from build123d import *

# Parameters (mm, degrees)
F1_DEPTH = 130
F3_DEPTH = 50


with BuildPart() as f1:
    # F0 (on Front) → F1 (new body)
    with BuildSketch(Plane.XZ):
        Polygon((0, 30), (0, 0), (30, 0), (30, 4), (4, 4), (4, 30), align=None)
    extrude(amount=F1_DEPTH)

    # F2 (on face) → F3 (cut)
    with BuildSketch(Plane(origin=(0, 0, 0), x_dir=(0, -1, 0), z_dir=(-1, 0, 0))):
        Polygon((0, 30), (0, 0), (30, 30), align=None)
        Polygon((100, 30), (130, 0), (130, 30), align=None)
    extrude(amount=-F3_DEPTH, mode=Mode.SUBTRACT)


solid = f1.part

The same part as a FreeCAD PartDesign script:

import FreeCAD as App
import Part
import Sketcher
from FreeCAD import Vector


def add_polygon(sketch, points):
    """Adds a closed chain of lines whose ends are joined by coincident constraints."""
    first, n = sketch.GeometryCount, len(points)
    for a, b in zip(points, points[1:] + points[:1]):
        sketch.addGeometry(Part.LineSegment(App.Vector(*a, 0), App.Vector(*b, 0)), False)
    for i in range(n):
        sketch.addConstraint(Sketcher.Constraint("Coincident", first + i, 2, first + (i + 1) % n, 1))

doc = App.newDocument("Part")
body = doc.addObject("PartDesign::Body", "Body")

sketch1 = body.newObject("Sketcher::SketchObject", "Sketch")
sketch1.AttachmentSupport = (doc.getObject("XZ_Plane"), [""])
sketch1.MapMode = "FlatFace"
add_polygon(sketch1, [(0, 30), (0, 0), (30, 0), (30, 4), (4, 4), (4, 30)])
sketch1.addConstraint(Sketcher.Constraint("Vertical", 0))
sketch1.addConstraint(Sketcher.Constraint("Horizontal", 1))
sketch1.addConstraint(Sketcher.Constraint("Vertical", 2))
sketch1.addConstraint(Sketcher.Constraint("Horizontal", 3))
sketch1.addConstraint(Sketcher.Constraint("Vertical", 4))
sketch1.addConstraint(Sketcher.Constraint("Horizontal", 5))
sketch1.addConstraint(Sketcher.Constraint("Coincident", 0, 2, -1, 1))
sketch1.addConstraint(Sketcher.Constraint("Equal", 1, 0))
sketch1.addConstraint(Sketcher.Constraint("Equal", 5, 2))
sketch1.addConstraint(Sketcher.Constraint("DistanceX", 1, 1, 1, 2, 30.0))
sketch1.addConstraint(Sketcher.Constraint("DistanceX", 3, 2, 3, 1, 26.0))
pad1 = body.newObject("PartDesign::Pad", "Pad")
pad1.Profile = sketch1
pad1.Length = 130

sketch2 = body.newObject("Sketcher::SketchObject", "Sketch001")
sketch2.AttachmentSupport = (doc.getObject("YZ_Plane"), [""])
sketch2.MapMode = "FlatFace"
add_polygon(sketch2, [(0, 30), (0, 0), (-30, 30)])
add_polygon(sketch2, [(-100, 30), (-130, 0), (-130, 30)])
sketch2.addConstraint(Sketcher.Constraint("Vertical", 0))
sketch2.addConstraint(Sketcher.Constraint("Horizontal", 2))
sketch2.addConstraint(Sketcher.Constraint("Vertical", 4))
sketch2.addConstraint(Sketcher.Constraint("Horizontal", 5))
sketch2.addConstraint(Sketcher.Constraint("Coincident", 0, 2, -1, 1))
sketch2.addConstraint(Sketcher.Constraint("PointOnObject", 3, 2, -1))
sketch2.addConstraint(Sketcher.Constraint("Perpendicular", 1, 3))
sketch2.addConstraint(Sketcher.Constraint("Horizontal", 2, 2, 4, 2))
sketch2.addConstraint(Sketcher.Constraint("Equal", 2, 5))
sketch2.addConstraint(Sketcher.Constraint("DistanceX", 2, 1, 2, 2, 30.0))
sketch2.addConstraint(Sketcher.Constraint("DistanceX", 3, 2, -1, 1, 130.0))
pocket1 = body.newObject("PartDesign::Pocket", "Pocket")
pocket1.Profile = sketch2
pocket1.Length = 50
pocket1.Reversed = True

doc.recompute()
